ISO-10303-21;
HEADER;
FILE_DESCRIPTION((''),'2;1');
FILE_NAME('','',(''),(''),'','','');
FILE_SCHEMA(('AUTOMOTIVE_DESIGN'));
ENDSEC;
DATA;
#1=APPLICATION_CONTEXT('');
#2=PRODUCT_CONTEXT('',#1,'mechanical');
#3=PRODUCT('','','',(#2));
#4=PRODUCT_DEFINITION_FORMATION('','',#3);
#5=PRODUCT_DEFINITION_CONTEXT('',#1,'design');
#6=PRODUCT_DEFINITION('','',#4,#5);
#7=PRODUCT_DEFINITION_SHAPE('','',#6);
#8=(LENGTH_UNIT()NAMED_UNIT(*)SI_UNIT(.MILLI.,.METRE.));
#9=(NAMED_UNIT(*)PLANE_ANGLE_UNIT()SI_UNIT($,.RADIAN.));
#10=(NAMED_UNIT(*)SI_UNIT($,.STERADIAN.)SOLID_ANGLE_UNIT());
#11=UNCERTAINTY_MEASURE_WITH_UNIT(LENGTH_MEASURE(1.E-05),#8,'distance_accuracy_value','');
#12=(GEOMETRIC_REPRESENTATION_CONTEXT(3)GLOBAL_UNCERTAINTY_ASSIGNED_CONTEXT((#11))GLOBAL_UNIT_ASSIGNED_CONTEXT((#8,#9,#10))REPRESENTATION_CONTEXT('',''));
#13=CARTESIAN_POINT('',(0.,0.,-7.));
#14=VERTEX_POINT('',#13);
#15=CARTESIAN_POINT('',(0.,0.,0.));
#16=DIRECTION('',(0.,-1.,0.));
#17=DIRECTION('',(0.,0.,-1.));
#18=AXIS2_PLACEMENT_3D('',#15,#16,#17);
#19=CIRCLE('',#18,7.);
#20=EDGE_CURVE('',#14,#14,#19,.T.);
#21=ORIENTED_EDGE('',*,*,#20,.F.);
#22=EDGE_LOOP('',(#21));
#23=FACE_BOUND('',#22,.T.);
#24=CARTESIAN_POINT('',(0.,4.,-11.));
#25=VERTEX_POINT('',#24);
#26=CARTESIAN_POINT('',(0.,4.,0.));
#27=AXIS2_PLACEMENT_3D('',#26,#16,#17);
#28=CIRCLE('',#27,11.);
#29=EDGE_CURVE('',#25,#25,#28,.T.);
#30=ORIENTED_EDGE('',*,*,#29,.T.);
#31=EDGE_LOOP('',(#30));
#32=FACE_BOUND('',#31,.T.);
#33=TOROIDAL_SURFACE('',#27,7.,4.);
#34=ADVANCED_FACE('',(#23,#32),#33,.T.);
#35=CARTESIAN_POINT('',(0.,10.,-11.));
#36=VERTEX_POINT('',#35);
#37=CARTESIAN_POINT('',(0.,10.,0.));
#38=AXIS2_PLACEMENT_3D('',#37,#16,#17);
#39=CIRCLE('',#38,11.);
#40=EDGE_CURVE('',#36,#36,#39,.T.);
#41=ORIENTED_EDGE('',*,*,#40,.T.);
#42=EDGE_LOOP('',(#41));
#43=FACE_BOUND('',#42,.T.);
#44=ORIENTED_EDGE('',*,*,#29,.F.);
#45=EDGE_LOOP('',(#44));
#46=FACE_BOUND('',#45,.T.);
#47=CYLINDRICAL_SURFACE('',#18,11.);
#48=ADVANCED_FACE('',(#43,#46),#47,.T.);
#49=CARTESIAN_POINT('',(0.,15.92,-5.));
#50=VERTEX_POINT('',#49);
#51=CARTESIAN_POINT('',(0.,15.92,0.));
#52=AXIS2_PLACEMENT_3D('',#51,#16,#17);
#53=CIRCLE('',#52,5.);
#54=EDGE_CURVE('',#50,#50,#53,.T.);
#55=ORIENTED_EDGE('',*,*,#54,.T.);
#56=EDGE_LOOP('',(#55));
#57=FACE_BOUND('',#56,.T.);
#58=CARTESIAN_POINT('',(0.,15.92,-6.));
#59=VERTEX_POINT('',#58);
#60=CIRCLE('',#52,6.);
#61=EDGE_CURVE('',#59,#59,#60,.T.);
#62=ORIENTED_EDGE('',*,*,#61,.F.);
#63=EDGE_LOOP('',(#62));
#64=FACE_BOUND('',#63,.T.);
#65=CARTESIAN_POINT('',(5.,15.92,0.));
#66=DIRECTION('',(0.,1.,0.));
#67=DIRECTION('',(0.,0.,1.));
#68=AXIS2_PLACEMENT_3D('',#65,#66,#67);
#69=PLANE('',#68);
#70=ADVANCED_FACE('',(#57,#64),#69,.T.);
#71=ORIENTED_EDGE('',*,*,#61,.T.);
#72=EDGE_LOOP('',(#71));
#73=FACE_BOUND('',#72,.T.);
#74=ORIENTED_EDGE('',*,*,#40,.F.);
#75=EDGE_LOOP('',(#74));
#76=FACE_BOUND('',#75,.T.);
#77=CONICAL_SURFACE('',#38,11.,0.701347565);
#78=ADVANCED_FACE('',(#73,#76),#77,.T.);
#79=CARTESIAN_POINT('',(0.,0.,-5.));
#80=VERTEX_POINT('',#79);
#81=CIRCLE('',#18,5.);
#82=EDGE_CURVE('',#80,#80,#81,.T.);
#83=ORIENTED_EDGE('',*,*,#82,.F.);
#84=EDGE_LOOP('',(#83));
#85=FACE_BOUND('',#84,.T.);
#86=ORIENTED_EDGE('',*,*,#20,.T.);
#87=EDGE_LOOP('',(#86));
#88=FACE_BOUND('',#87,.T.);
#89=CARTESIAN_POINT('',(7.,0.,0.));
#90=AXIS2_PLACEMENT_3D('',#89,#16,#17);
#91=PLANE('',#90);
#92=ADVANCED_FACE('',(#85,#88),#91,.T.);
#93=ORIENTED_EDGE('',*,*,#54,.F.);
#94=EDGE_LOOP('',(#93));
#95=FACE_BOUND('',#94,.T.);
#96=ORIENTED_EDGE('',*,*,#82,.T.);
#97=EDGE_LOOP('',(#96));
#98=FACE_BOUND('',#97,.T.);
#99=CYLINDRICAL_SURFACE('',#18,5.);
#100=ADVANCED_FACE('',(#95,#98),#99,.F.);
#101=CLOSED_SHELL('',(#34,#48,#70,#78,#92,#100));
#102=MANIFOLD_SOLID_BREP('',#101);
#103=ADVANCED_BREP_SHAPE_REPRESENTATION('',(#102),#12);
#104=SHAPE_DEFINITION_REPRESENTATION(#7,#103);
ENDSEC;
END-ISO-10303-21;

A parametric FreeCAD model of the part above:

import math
import FreeCAD as App
import Part
import Sketcher

V = App.Vector
Q = App.Units.Quantity

doc = App.newDocument("Part")
body = doc.addObject("PartDesign::Body", "Body")

# Sketch on XY plane
sketch1 = body.newObject("Sketcher::SketchObject", "Sketch")
sketch1.AttachmentSupport = (doc.getObject("XY_Plane"), [""])
sketch1.MapMode = "FlatFace"
sketch1.addGeometry([
    Part.LineSegment(V(5, 15.9, 0), V(5, 0, 0)),  # 0
    Part.LineSegment(V(5, 0, 0), V(7, 0, 0)),  # 1
    Part.ArcOfCircle(Part.Circle(V(7, 4, 0), V(0, 0, 1), 4), math.radians(-90), math.radians(0)),  # 2
    Part.LineSegment(V(11, 4, 0), V(11, 10, 0)),  # 3
    Part.LineSegment(V(11, 10, 0), V(6, 15.9, 0)),  # 4
    Part.LineSegment(V(6, 15.9, 0), V(5, 15.9, 0)),  # 5
], False)
sketch1.addConstraint([
    Sketcher.Constraint("Coincident", 0, 2, 1, 1),
    Sketcher.Constraint("Tangent", 1, 2, 2, 1),
    Sketcher.Constraint("Tangent", 2, 2, 3, 1),
    Sketcher.Constraint("Coincident", 3, 2, 4, 1),
    Sketcher.Constraint("Coincident", 4, 2, 5, 1),
    Sketcher.Constraint("Coincident", 5, 2, 0, 1),
    Sketcher.Constraint("Vertical", 0),
    Sketcher.Constraint("Horizontal", 1),
    Sketcher.Constraint("Vertical", 3),
    Sketcher.Constraint("Horizontal", 5),
    Sketcher.Constraint("PointOnObject", 0, 2, -1),
    Sketcher.Constraint("Radius", 2, Q("4 mm")),
    Sketcher.Constraint("DistanceX", 1, 1, 1, 2, Q("2 mm")),
    Sketcher.Constraint("DistanceX", 5, 2, 5, 1, Q("1 mm")),
    Sketcher.Constraint("DistanceY", 3, 1, 3, 2, Q("6 mm")),
    Sketcher.Constraint("DistanceX", -1, 1, 2, 3, Q("7 mm")),
    Sketcher.Constraint("DistanceY", 0, 2, 0, 1, Q("15.92 mm")),
])
revolution = body.newObject("PartDesign::Revolution", "Revolution")
revolution.Profile = sketch1
revolution.ReferenceAxis = (sketch1, ["V_Axis"])
revolution.Angle = 360

doc.recompute()
